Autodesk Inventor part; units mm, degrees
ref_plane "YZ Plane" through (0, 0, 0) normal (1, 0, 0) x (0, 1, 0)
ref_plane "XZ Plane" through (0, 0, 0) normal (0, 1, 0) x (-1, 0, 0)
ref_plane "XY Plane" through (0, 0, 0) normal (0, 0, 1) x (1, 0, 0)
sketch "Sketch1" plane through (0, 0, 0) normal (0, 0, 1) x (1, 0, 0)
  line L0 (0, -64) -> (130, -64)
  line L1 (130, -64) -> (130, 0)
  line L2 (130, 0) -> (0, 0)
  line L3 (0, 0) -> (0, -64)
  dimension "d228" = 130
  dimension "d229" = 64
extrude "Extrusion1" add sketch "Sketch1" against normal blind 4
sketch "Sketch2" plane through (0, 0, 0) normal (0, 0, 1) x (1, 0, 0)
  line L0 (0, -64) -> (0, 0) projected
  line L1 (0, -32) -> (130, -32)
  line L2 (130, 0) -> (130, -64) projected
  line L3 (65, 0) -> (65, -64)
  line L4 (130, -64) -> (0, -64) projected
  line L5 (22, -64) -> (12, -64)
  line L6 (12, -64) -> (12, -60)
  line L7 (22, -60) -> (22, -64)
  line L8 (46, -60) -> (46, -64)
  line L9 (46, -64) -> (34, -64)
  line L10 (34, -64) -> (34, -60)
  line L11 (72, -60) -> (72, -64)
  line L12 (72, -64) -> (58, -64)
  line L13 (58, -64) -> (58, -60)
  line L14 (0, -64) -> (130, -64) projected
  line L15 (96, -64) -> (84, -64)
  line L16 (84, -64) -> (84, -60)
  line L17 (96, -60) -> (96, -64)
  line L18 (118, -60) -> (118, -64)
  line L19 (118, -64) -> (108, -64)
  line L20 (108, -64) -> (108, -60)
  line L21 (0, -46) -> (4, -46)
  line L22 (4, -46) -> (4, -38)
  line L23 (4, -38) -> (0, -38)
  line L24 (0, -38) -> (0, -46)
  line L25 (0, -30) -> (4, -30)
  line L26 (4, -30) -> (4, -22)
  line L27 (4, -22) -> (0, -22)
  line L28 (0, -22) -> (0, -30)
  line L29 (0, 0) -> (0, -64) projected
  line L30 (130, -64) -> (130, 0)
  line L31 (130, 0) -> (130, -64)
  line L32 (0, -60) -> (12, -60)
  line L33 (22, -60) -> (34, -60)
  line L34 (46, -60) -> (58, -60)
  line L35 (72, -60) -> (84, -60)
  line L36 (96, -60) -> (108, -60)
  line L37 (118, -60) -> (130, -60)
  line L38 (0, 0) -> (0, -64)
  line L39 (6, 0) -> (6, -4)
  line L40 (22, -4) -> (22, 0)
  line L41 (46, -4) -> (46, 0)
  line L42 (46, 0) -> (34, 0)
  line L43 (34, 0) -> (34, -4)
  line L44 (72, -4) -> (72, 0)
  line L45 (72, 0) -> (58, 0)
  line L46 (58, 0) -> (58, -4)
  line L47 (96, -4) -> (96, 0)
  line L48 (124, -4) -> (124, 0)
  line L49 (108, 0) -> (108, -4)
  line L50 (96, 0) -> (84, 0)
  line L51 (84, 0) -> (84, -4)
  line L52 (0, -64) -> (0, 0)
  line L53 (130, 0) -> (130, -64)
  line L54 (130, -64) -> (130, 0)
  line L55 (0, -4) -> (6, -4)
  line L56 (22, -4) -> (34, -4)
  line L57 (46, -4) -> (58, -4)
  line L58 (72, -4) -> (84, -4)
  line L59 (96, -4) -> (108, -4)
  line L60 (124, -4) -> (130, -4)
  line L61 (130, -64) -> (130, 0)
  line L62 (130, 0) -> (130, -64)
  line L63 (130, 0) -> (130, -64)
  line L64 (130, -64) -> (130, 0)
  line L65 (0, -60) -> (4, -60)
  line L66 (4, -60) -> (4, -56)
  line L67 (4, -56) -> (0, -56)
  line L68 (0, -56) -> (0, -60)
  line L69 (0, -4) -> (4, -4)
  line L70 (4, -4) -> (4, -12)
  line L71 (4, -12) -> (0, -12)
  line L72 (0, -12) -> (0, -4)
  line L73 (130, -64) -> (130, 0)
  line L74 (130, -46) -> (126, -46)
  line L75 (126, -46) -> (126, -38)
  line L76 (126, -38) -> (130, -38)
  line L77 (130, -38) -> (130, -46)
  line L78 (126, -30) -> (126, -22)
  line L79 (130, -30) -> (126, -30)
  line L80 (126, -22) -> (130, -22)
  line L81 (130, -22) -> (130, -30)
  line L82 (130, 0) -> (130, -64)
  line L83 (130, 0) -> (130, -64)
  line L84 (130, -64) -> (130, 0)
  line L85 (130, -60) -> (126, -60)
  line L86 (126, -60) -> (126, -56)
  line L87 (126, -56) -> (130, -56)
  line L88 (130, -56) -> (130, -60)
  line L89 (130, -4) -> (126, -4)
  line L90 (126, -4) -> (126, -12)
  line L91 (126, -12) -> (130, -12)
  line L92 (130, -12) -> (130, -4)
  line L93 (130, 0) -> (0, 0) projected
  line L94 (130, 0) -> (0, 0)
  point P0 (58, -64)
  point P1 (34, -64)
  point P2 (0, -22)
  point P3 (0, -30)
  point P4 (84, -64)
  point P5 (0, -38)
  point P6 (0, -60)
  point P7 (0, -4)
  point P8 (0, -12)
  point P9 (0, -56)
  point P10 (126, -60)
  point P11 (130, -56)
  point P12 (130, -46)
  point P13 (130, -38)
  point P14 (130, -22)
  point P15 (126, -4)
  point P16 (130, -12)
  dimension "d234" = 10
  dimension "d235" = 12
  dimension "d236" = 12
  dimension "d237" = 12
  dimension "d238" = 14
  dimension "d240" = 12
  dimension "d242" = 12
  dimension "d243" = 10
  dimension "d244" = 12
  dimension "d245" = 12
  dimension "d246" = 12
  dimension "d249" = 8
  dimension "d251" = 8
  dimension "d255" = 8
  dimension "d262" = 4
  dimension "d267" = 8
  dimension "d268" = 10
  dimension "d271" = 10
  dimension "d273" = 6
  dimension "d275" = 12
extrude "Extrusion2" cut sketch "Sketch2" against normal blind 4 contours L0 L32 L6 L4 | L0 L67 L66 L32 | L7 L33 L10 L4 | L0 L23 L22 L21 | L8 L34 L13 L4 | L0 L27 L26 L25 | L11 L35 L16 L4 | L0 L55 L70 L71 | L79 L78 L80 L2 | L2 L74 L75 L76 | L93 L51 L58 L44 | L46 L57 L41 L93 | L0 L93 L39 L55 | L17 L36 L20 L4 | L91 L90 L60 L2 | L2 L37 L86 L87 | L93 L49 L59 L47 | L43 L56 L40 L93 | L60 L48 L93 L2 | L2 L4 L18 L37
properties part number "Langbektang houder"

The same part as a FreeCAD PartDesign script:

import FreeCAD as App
import Part
import Sketcher
Q = App.Units.Quantity


def add_polygon(sketch, points):
    """Adds a closed chain of lines whose ends are joined by coincident constraints."""
    first, n = sketch.GeometryCount, len(points)
    for a, b in zip(points, points[1:] + points[:1]):
        sketch.addGeometry(Part.LineSegment(App.Vector(*a, 0), App.Vector(*b, 0)), False)
    for i in range(n):
        sketch.addConstraint(Sketcher.Constraint("Coincident", first + i, 2, first + (i + 1) % n, 1))

doc = App.newDocument("Part")
body = doc.addObject("PartDesign::Body", "Body")

# Sketch on XY plane
sketch1 = body.newObject("Sketcher::SketchObject", "Sketch")
sketch1.AttachmentSupport = (doc.getObject("XY_Plane"), [""])
sketch1.MapMode = "FlatFace"
add_polygon(sketch1, [(0, 0), (0, -64), (130, -64), (130, 0)])  # lines 0-3
sketch1.addConstraint([
    Sketcher.Constraint("Vertical", 0),
    Sketcher.Constraint("Horizontal", 1),
    Sketcher.Constraint("Vertical", 2),
    Sketcher.Constraint("Horizontal", 3),
    Sketcher.Constraint("Coincident", 3, 2, -1, 1),
    Sketcher.Constraint("DistanceX", 1, 1, 1, 2, Q("130 mm")),
    Sketcher.Constraint("DistanceY", 0, 2, 0, 1, Q("64 mm")),
])
pad1 = body.newObject("PartDesign::Pad", "Pad")
pad1.Profile = sketch1
pad1.Length = 4
pad1.Reversed = True

# Sketch on XY plane
sketch2 = body.newObject("Sketcher::SketchObject", "Sketch001")
sketch2.AttachmentSupport = (doc.getObject("XY_Plane"), [""])
sketch2.MapMode = "FlatFace"
add_polygon(sketch2, [(0, -64), (12, -64), (12, -60), (4, -60), (4, -56), (0, -56)])  # lines 0-5
add_polygon(sketch2, [(22, -60), (22, -64), (34, -64), (34, -60)])  # lines 6-9
add_polygon(sketch2, [(0, -38), (0, -46), (4, -46), (4, -38)])  # lines 10-13
add_polygon(sketch2, [(46, -60), (46, -64), (58, -64), (58, -60)])  # lines 14-17
add_polygon(sketch2, [(0, -22), (0, -30), (4, -30), (4, -22)])  # lines 18-21
add_polygon(sketch2, [(72, -60), (72, -64), (84, -64), (84, -60)])  # lines 22-25
add_polygon(sketch2, [(0, -12), (4, -12), (4, -4), (6, -4), (6, 0), (0, 0)])  # lines 26-31
add_polygon(sketch2, [(126, -30), (130, -30), (130, -22), (126, -22)])  # lines 32-35
add_polygon(sketch2, [(130, -46), (130, -38), (126, -38), (126, -46)])  # lines 36-39
add_polygon(sketch2, [(84, 0), (72, 0), (72, -4), (84, -4)])  # lines 40-43
add_polygon(sketch2, [(58, -4), (58, 0), (46, 0), (46, -4)])  # lines 44-47
add_polygon(sketch2, [(96, -60), (96, -64), (108, -64), (108, -60)])  # lines 48-51
add_polygon(sketch2, [(126, -12), (130, -12), (130, 0), (124, 0), (124, -4), (126, -4)])  # lines 52-57
add_polygon(sketch2, [(130, -56), (126, -56), (126, -60), (118, -60), (118, -64), (130, -64)])  # lines 58-63
add_polygon(sketch2, [(108, 0), (96, 0), (96, -4), (108, -4)])  # lines 64-67
add_polygon(sketch2, [(34, -4), (34, 0), (22, 0), (22, -4)])  # lines 68-71
sketch2.addConstraint([
    Sketcher.Constraint("Horizontal", 0),
    Sketcher.Constraint("Vertical", 1),
    Sketcher.Constraint("Horizontal", 2),
    Sketcher.Constraint("Vertical", 3),
    Sketcher.Constraint("Horizontal", 4),
    Sketcher.Constraint("Vertical", 5),
    Sketcher.Constraint("Vertical", 6),
    Sketcher.Constraint("Horizontal", 7),
    Sketcher.Constraint("Vertical", 8),
    Sketcher.Constraint("Horizontal", 9),
    Sketcher.Constraint("Vertical", 10),
    Sketcher.Constraint("Horizontal", 11),
    Sketcher.Constraint("Vertical", 12),
    Sketcher.Constraint("Horizontal", 13),
    Sketcher.Constraint("Vertical", 14),
    Sketcher.Constraint("Horizontal", 15),
    Sketcher.Constraint("Vertical", 16),
    Sketcher.Constraint("Horizontal", 17),
    Sketcher.Constraint("Vertical", 18),
    Sketcher.Constraint("Horizontal", 19),
    Sketcher.Constraint("Vertical", 20),
    Sketcher.Constraint("Horizontal", 21),
    Sketcher.Constraint("Vertical", 22),
    Sketcher.Constraint("Horizontal", 23),
    Sketcher.Constraint("Vertical", 24),
    Sketcher.Constraint("Horizontal", 25),
    Sketcher.Constraint("Horizontal", 26),
    Sketcher.Constraint("Vertical", 27),
    Sketcher.Constraint("Horizontal", 28),
    Sketcher.Constraint("Vertical", 29),
    Sketcher.Constraint("Horizontal", 30),
    Sketcher.Constraint("Vertical", 31),
    Sketcher.Constraint("Horizontal", 32),
    Sketcher.Constraint("Vertical", 33),
    Sketcher.Constraint("Horizontal", 34),
    Sketcher.Constraint("Vertical", 35),
    Sketcher.Constraint("Vertical", 36),
    Sketcher.Constraint("Horizontal", 37),
    Sketcher.Constraint("Vertical", 38),
    Sketcher.Constraint("Horizontal", 39),
    Sketcher.Constraint("Horizontal", 40),
    Sketcher.Constraint("Vertical", 41),
    Sketcher.Constraint("Horizontal", 42),
    Sketcher.Constraint("Vertical", 43),
    Sketcher.Constraint("Vertical", 44),
    Sketcher.Constraint("Horizontal", 45),
    Sketcher.Constraint("Vertical", 46),
    Sketcher.Constraint("Horizontal", 47),
    Sketcher.Constraint("Vertical", 48),
    Sketcher.Constraint("Horizontal", 49),
    Sketcher.Constraint("Vertical", 50),
    Sketcher.Constraint("Horizontal", 51),
    Sketcher.Constraint("Horizontal", 52),
    Sketcher.Constraint("Vertical", 53),
    Sketcher.Constraint("Horizontal", 54),
    Sketcher.Constraint("Vertical", 55),
    Sketcher.Constraint("Horizontal", 56),
    Sketcher.Constraint("Vertical", 57),
    Sketcher.Constraint("Horizontal", 58),
    Sketcher.Constraint("Vertical", 59),
    Sketcher.Constraint("Horizontal", 60),
    Sketcher.Constraint("Vertical", 61),
    Sketcher.Constraint("Horizontal", 62),
    Sketcher.Constraint("Vertical", 63),
    Sketcher.Constraint("Horizontal", 64),
    Sketcher.Constraint("Vertical", 65),
    Sketcher.Constraint("Horizontal", 66),
    Sketcher.Constraint("Vertical", 67),
    Sketcher.Constraint("Vertical", 68),
    Sketcher.Constraint("Horizontal", 69),
    Sketcher.Constraint("Vertical", 70),
    Sketcher.Constraint("Horizontal", 71),
    Sketcher.Constraint("Coincident", 30, 2, -1, 1),
    Sketcher.Constraint("PointOnObject", 4, 2, -2),
    Sketcher.Constraint("PointOnObject", 10, 2, -2),
    Sketcher.Constraint("PointOnObject", 18, 2, -2),
    Sketcher.Constraint("PointOnObject", 40, 2, -1),
    Sketcher.Constraint("PointOnObject", 44, 2, -1),
    Sketcher.Constraint("PointOnObject", 53, 2, -1),
    Sketcher.Constraint("PointOnObject", 64, 2, -1),
    Sketcher.Constraint("PointOnObject", 68, 2, -1),
    Sketcher.Constraint("Horizontal", 5, 2, 6, 2),
    Sketcher.Constraint("Horizontal", 2, 2, 8, 2),
    Sketcher.Constraint("Horizontal", 7, 2, 14, 2),
    Sketcher.Constraint("Horizontal", 9, 2, 16, 2),
    Sketcher.Constraint("Horizontal", 15, 2, 22, 2),
    Sketcher.Constraint("Horizontal", 17, 2, 24, 2),
    Sketcher.Constraint("Horizontal", 19, 2, 32, 2),
    Sketcher.Constraint("Horizontal", 21, 2, 33, 2),
    Sketcher.Constraint("Horizontal", 13, 2, 36, 2),
    Sketcher.Constraint("Horizontal", 11, 2, 38, 2),
    Sketcher.Constraint("Horizontal", 28, 2, 41, 2),
    Sketcher.Constraint("Horizontal", 42, 2, 46, 2),
    Sketcher.Constraint("Horizontal", 23, 2, 48, 2),
    Sketcher.Constraint("Horizontal", 25, 2, 50, 2),
    Sketcher.Constraint("Horizontal", 31, 2, 52, 2),
    Sketcher.Constraint("Horizontal", 47, 2, 55, 2),
    Sketcher.Constraint("Horizontal", 4, 2, 58, 2),
    Sketcher.Constraint("Horizontal", 51, 2, 59, 2),
    Sketcher.Constraint("Horizontal", 49, 2, 61, 2),
    Sketcher.Constraint("Horizontal", 56, 2, 65, 2),
    Sketcher.Constraint("Horizontal", 66, 2, 70, 2),
    Sketcher.Constraint("Vertical", 3, 2, 11, 2),
    Sketcher.Constraint("Vertical", 12, 2, 19, 2),
    Sketcher.Constraint("Vertical", 20, 2, 26, 2),
    Sketcher.Constraint("Vertical", 33, 2, 36, 2),
    Sketcher.Constraint("Vertical", 35, 2, 37, 2),
    Sketcher.Constraint("Vertical", 25, 2, 40, 2),
    Sketcher.Constraint("Vertical", 24, 2, 42, 2),
    Sketcher.Constraint("Vertical", 16, 2, 44, 2),
    Sketcher.Constraint("Vertical", 17, 2, 45, 2),
    Sketcher.Constraint("Vertical", 39, 2, 52, 2),
    Sketcher.Constraint("Vertical", 38, 2, 56, 2),
    Sketcher.Constraint("Vertical", 57, 2, 58, 2),
    Sketcher.Constraint("Vertical", 53, 2, 62, 2),
    Sketcher.Constraint("Vertical", 51, 2, 64, 2),
    Sketcher.Constraint("Vertical", 50, 2, 66, 2),
    Sketcher.Constraint("Vertical", 8, 2, 68, 2),
    Sketcher.Constraint("Vertical", 9, 2, 69, 2),
    Sketcher.Constraint("Equal", 0, 7),
    Sketcher.Constraint("Equal", 9, 15),
    Sketcher.Constraint("Equal", 17, 23),
    Sketcher.Constraint("Equal", 26, 32),
    Sketcher.Constraint("Equal", 47, 49),
    Sketcher.Constraint("Equal", 30, 54),
    Sketcher.Constraint("Equal", 2, 60),
    Sketcher.Constraint("Equal", 58, 1),
    Sketcher.Constraint("Equal", 1, 3),
    Sketcher.Constraint("Equal", 60, 5),
    Sketcher.Constraint("Equal", 5, 10),
    Sketcher.Constraint("Equal", 12, 18),
    Sketcher.Constraint("Equal", 20, 27),
    Sketcher.Constraint("Equal", 24, 29),
    Sketcher.Constraint("DistanceX", 0, 1, 0, 2, Q("12 mm")),
    Sketcher.Constraint("DistanceX", 30, 2, 30, 1, Q("6 mm")),
    Sketcher.Constraint("DistanceY", 0, 2, -1, 1, Q("64 mm")),
    Sketcher.Constraint("DistanceX", -1, 1, 6, 2, Q("22 mm")),
    Sketcher.Constraint("DistanceY", 10, 2, -1, 1, Q("46 mm")),
    Sketcher.Constraint("DistanceX", -1, 1, 14, 2, Q("46 mm")),
    Sketcher.Constraint("DistanceY", 18, 2, -1, 1, Q("30 mm")),
    Sketcher.Constraint("DistanceX", -1, 1, 22, 2, Q("72 mm")),
    Sketcher.Constraint("DistanceX", -1, 1, 32, 2, Q("130 mm")),
    Sketcher.Constraint("DistanceX", -1, 1, 48, 2, Q("96 mm")),
])
pocket1 = body.newObject("PartDesign::Pocket", "Pocket")
pocket1.Profile = sketch2
pocket1.Length = 4

doc.recompute()
